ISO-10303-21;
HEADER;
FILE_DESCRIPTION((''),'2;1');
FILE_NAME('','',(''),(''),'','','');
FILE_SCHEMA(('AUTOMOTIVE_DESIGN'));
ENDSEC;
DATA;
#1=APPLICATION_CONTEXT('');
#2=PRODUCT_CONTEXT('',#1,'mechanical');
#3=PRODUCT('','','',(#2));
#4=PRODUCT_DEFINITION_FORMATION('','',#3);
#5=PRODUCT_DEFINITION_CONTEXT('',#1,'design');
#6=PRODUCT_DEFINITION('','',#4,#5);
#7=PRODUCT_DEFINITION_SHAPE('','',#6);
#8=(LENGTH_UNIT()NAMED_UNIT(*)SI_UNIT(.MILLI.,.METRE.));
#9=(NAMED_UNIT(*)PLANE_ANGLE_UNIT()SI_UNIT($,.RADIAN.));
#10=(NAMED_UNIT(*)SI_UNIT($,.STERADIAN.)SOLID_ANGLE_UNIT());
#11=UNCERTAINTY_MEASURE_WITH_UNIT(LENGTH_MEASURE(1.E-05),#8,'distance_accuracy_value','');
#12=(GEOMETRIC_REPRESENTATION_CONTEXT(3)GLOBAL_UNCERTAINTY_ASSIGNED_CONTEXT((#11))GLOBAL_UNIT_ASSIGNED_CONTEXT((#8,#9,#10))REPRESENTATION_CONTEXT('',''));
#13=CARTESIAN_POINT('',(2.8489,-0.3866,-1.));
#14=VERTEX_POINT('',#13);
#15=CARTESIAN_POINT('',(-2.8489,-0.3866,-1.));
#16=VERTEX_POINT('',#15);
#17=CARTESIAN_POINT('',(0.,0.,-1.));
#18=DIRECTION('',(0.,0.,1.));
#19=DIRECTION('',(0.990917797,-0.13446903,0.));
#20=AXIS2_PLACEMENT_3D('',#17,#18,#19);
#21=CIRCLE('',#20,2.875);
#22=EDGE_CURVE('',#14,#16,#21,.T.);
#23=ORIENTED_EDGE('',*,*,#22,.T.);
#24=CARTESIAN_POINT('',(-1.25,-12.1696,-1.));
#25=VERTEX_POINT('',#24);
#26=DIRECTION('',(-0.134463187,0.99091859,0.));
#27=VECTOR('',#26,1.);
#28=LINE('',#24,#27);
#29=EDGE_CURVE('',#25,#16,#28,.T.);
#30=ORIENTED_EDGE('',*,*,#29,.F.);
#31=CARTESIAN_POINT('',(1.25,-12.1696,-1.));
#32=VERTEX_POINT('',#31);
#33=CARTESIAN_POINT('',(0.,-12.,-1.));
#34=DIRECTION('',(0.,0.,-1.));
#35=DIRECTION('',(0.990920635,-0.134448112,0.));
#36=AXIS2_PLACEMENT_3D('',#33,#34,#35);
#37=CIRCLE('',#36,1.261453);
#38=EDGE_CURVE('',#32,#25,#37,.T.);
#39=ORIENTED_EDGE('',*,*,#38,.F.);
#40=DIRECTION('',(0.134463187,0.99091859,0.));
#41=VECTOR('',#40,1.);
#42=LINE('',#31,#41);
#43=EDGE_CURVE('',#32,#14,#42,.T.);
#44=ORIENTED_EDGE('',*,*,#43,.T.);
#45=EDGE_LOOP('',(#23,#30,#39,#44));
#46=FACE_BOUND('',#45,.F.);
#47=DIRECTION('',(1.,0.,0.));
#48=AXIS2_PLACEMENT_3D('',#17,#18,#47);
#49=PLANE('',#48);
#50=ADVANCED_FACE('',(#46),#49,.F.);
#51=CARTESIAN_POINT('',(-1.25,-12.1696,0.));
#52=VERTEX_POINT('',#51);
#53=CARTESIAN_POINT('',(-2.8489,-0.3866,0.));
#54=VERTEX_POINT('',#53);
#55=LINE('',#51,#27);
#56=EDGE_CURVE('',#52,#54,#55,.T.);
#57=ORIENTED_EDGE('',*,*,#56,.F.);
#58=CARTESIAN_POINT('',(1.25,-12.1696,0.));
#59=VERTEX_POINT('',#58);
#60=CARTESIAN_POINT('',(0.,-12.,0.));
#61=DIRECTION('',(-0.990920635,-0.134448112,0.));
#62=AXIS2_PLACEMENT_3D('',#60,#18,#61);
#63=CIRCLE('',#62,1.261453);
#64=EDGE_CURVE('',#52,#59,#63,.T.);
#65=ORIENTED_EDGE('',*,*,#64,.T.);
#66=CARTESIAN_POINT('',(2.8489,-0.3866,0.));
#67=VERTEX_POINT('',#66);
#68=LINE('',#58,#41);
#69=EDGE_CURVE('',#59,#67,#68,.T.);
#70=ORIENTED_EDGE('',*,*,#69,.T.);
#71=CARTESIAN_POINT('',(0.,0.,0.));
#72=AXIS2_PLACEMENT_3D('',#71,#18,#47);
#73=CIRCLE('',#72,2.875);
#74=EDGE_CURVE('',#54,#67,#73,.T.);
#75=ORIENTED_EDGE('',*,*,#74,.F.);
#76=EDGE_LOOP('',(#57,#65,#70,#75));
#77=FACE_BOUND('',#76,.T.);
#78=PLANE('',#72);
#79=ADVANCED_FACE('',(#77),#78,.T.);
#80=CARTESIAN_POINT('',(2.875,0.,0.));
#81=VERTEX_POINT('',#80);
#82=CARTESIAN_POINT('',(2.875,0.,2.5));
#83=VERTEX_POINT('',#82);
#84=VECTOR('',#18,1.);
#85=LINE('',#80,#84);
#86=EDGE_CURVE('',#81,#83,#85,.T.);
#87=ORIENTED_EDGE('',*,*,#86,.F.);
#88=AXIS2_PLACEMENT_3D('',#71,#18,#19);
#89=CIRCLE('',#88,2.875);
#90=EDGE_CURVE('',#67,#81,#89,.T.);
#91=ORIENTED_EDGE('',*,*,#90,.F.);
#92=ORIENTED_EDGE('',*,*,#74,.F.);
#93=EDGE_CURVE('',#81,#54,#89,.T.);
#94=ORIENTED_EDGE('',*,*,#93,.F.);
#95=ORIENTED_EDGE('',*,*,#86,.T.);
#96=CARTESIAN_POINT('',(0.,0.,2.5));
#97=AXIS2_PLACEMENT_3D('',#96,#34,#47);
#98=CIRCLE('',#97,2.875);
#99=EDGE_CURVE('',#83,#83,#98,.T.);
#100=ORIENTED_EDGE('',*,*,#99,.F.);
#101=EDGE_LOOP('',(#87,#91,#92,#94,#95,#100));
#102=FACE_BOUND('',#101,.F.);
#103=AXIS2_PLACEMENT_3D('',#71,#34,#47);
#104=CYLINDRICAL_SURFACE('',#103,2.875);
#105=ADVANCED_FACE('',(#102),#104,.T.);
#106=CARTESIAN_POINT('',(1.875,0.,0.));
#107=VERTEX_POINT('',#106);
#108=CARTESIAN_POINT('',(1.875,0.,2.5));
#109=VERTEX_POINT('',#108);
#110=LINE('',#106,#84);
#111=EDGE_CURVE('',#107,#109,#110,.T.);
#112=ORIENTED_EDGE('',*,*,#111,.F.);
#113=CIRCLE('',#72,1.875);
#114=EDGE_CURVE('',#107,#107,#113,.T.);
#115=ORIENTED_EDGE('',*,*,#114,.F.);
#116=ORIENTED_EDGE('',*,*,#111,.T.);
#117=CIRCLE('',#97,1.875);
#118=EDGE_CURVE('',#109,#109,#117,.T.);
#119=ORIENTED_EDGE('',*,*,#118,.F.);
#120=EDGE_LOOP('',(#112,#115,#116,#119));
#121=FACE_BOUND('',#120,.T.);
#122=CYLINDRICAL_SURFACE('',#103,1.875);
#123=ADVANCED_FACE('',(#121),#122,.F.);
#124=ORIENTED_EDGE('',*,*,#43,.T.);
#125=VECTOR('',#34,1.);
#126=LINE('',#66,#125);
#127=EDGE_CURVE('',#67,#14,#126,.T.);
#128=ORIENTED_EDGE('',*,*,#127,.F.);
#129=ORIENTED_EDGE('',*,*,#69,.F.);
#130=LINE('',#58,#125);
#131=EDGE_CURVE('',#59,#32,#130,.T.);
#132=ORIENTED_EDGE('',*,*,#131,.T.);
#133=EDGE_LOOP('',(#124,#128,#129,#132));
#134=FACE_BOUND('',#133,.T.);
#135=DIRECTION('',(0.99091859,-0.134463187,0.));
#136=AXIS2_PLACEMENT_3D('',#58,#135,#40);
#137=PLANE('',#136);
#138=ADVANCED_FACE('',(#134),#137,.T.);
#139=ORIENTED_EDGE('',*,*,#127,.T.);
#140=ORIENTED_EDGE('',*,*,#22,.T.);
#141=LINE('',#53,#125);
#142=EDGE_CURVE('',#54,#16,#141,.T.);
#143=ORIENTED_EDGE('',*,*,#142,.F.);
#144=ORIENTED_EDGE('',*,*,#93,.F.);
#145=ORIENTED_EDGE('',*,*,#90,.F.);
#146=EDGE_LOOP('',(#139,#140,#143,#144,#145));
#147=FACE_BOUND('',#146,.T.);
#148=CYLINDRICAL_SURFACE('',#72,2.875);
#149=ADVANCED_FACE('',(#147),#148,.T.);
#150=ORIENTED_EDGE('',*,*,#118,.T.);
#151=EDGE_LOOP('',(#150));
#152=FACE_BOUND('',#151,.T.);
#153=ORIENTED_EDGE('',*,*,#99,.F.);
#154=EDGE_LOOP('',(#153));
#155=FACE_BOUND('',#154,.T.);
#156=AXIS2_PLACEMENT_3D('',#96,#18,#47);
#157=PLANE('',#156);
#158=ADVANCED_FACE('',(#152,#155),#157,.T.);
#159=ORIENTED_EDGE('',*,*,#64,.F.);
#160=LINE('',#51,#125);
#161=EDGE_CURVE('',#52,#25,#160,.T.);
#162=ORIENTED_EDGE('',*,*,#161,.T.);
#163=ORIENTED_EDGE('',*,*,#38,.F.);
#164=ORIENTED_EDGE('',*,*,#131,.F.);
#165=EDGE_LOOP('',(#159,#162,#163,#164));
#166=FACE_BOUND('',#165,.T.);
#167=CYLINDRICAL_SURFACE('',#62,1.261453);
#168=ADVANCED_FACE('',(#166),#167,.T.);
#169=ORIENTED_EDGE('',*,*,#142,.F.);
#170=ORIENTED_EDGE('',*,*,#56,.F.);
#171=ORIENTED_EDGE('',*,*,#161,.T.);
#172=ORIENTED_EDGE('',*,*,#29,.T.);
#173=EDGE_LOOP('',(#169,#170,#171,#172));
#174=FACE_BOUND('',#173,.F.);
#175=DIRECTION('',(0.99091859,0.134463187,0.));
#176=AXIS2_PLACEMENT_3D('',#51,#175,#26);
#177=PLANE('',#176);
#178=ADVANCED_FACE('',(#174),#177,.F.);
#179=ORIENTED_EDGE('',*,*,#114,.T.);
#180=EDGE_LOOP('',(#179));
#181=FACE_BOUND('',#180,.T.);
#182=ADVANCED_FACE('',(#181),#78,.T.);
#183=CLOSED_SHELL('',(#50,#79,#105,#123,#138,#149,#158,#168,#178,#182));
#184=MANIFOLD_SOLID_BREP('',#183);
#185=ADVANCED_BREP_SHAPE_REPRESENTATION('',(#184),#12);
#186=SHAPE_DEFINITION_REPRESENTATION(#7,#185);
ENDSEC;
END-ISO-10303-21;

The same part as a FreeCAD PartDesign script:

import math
import FreeCAD as App
import Part
import Sketcher

V = App.Vector

doc = App.newDocument("Part")
body = doc.addObject("PartDesign::Body", "Body")

# Sketch on XY plane
sketch1 = doc.addObject("Sketcher::SketchObject", "Sketch")
body.addObject(sketch1)
sketch1.AttachmentSupport = (doc.XY_Plane, [""])
sketch1.MapMode = "FlatFace"
sketch1.addGeometry(Part.LineSegment(V(-2.8, -0.4, 0), V(-1.2, -12.2, 0)), False)
sketch1.addGeometry(Part.ArcOfCircle(Part.Circle(V(0, -12, 0), V(0, 0, 1), 1.3), math.radians(-172), math.radians(-8)), False)
sketch1.addGeometry(Part.LineSegment(V(1.2, -12.2, 0), V(2.8, -0.4, 0)), False)
sketch1.addGeometry(Part.ArcOfCircle(Part.Circle(V(0, 0, 0), V(0, 0, 1), 2.9), math.radians(-8), math.radians(188)), False)
sketch1.addConstraint(Sketcher.Constraint("Tangent", 0, 2, 1, 1))
sketch1.addConstraint(Sketcher.Constraint("Tangent", 1, 2, 2, 1))
sketch1.addConstraint(Sketcher.Constraint("Tangent", 2, 2, 3, 1))
sketch1.addConstraint(Sketcher.Constraint("Tangent", 3, 2, 0, 1))
sketch1.addConstraint(Sketcher.Constraint("Coincident", 3, 3, -1, 1))
sketch1.addConstraint(Sketcher.Constraint("PointOnObject", 1, 3, -2))
sketch1.addConstraint(Sketcher.Constraint("DistanceY", 1, 3, -1, 1, 12.0))
sketch1.addConstraint(Sketcher.Constraint("DistanceX", 0, 2, 1, 2, 2.5))
sketch1.addConstraint(Sketcher.Constraint("Radius", 3, 2.875))
pad1 = doc.addObject("PartDesign::Pad", "Pad")
body.addObject(pad1)
pad1.Profile = sketch1
pad1.Length = 1
pad1.Reversed = True

# Sketch on XY plane
sketch2 = doc.addObject("Sketcher::SketchObject", "Sketch001")
body.addObject(sketch2)
sketch2.AttachmentSupport = (doc.XY_Plane, [""])
sketch2.MapMode = "FlatFace"
sketch2.addGeometry(Part.Circle(V(0, 0, 0), V(0, 0, 1), 2.9), False)
sketch2.addGeometry(Part.Circle(V(0, 0, 0), V(0, 0, 1), 1.9), False)
sketch2.addConstraint(Sketcher.Constraint("Coincident", 0, 3, -1, 1))
sketch2.addConstraint(Sketcher.Constraint("Coincident", 1, 3, -1, 1))
sketch2.addConstraint(Sketcher.Constraint("Diameter", 1, 3.75))
sketch2.addConstraint(Sketcher.Constraint("Diameter", 0, 5.75))
pad2 = doc.addObject("PartDesign::Pad", "Pad001")
body.addObject(pad2)
pad2.Profile = sketch2
pad2.Length = 2.5

doc.recompute()
